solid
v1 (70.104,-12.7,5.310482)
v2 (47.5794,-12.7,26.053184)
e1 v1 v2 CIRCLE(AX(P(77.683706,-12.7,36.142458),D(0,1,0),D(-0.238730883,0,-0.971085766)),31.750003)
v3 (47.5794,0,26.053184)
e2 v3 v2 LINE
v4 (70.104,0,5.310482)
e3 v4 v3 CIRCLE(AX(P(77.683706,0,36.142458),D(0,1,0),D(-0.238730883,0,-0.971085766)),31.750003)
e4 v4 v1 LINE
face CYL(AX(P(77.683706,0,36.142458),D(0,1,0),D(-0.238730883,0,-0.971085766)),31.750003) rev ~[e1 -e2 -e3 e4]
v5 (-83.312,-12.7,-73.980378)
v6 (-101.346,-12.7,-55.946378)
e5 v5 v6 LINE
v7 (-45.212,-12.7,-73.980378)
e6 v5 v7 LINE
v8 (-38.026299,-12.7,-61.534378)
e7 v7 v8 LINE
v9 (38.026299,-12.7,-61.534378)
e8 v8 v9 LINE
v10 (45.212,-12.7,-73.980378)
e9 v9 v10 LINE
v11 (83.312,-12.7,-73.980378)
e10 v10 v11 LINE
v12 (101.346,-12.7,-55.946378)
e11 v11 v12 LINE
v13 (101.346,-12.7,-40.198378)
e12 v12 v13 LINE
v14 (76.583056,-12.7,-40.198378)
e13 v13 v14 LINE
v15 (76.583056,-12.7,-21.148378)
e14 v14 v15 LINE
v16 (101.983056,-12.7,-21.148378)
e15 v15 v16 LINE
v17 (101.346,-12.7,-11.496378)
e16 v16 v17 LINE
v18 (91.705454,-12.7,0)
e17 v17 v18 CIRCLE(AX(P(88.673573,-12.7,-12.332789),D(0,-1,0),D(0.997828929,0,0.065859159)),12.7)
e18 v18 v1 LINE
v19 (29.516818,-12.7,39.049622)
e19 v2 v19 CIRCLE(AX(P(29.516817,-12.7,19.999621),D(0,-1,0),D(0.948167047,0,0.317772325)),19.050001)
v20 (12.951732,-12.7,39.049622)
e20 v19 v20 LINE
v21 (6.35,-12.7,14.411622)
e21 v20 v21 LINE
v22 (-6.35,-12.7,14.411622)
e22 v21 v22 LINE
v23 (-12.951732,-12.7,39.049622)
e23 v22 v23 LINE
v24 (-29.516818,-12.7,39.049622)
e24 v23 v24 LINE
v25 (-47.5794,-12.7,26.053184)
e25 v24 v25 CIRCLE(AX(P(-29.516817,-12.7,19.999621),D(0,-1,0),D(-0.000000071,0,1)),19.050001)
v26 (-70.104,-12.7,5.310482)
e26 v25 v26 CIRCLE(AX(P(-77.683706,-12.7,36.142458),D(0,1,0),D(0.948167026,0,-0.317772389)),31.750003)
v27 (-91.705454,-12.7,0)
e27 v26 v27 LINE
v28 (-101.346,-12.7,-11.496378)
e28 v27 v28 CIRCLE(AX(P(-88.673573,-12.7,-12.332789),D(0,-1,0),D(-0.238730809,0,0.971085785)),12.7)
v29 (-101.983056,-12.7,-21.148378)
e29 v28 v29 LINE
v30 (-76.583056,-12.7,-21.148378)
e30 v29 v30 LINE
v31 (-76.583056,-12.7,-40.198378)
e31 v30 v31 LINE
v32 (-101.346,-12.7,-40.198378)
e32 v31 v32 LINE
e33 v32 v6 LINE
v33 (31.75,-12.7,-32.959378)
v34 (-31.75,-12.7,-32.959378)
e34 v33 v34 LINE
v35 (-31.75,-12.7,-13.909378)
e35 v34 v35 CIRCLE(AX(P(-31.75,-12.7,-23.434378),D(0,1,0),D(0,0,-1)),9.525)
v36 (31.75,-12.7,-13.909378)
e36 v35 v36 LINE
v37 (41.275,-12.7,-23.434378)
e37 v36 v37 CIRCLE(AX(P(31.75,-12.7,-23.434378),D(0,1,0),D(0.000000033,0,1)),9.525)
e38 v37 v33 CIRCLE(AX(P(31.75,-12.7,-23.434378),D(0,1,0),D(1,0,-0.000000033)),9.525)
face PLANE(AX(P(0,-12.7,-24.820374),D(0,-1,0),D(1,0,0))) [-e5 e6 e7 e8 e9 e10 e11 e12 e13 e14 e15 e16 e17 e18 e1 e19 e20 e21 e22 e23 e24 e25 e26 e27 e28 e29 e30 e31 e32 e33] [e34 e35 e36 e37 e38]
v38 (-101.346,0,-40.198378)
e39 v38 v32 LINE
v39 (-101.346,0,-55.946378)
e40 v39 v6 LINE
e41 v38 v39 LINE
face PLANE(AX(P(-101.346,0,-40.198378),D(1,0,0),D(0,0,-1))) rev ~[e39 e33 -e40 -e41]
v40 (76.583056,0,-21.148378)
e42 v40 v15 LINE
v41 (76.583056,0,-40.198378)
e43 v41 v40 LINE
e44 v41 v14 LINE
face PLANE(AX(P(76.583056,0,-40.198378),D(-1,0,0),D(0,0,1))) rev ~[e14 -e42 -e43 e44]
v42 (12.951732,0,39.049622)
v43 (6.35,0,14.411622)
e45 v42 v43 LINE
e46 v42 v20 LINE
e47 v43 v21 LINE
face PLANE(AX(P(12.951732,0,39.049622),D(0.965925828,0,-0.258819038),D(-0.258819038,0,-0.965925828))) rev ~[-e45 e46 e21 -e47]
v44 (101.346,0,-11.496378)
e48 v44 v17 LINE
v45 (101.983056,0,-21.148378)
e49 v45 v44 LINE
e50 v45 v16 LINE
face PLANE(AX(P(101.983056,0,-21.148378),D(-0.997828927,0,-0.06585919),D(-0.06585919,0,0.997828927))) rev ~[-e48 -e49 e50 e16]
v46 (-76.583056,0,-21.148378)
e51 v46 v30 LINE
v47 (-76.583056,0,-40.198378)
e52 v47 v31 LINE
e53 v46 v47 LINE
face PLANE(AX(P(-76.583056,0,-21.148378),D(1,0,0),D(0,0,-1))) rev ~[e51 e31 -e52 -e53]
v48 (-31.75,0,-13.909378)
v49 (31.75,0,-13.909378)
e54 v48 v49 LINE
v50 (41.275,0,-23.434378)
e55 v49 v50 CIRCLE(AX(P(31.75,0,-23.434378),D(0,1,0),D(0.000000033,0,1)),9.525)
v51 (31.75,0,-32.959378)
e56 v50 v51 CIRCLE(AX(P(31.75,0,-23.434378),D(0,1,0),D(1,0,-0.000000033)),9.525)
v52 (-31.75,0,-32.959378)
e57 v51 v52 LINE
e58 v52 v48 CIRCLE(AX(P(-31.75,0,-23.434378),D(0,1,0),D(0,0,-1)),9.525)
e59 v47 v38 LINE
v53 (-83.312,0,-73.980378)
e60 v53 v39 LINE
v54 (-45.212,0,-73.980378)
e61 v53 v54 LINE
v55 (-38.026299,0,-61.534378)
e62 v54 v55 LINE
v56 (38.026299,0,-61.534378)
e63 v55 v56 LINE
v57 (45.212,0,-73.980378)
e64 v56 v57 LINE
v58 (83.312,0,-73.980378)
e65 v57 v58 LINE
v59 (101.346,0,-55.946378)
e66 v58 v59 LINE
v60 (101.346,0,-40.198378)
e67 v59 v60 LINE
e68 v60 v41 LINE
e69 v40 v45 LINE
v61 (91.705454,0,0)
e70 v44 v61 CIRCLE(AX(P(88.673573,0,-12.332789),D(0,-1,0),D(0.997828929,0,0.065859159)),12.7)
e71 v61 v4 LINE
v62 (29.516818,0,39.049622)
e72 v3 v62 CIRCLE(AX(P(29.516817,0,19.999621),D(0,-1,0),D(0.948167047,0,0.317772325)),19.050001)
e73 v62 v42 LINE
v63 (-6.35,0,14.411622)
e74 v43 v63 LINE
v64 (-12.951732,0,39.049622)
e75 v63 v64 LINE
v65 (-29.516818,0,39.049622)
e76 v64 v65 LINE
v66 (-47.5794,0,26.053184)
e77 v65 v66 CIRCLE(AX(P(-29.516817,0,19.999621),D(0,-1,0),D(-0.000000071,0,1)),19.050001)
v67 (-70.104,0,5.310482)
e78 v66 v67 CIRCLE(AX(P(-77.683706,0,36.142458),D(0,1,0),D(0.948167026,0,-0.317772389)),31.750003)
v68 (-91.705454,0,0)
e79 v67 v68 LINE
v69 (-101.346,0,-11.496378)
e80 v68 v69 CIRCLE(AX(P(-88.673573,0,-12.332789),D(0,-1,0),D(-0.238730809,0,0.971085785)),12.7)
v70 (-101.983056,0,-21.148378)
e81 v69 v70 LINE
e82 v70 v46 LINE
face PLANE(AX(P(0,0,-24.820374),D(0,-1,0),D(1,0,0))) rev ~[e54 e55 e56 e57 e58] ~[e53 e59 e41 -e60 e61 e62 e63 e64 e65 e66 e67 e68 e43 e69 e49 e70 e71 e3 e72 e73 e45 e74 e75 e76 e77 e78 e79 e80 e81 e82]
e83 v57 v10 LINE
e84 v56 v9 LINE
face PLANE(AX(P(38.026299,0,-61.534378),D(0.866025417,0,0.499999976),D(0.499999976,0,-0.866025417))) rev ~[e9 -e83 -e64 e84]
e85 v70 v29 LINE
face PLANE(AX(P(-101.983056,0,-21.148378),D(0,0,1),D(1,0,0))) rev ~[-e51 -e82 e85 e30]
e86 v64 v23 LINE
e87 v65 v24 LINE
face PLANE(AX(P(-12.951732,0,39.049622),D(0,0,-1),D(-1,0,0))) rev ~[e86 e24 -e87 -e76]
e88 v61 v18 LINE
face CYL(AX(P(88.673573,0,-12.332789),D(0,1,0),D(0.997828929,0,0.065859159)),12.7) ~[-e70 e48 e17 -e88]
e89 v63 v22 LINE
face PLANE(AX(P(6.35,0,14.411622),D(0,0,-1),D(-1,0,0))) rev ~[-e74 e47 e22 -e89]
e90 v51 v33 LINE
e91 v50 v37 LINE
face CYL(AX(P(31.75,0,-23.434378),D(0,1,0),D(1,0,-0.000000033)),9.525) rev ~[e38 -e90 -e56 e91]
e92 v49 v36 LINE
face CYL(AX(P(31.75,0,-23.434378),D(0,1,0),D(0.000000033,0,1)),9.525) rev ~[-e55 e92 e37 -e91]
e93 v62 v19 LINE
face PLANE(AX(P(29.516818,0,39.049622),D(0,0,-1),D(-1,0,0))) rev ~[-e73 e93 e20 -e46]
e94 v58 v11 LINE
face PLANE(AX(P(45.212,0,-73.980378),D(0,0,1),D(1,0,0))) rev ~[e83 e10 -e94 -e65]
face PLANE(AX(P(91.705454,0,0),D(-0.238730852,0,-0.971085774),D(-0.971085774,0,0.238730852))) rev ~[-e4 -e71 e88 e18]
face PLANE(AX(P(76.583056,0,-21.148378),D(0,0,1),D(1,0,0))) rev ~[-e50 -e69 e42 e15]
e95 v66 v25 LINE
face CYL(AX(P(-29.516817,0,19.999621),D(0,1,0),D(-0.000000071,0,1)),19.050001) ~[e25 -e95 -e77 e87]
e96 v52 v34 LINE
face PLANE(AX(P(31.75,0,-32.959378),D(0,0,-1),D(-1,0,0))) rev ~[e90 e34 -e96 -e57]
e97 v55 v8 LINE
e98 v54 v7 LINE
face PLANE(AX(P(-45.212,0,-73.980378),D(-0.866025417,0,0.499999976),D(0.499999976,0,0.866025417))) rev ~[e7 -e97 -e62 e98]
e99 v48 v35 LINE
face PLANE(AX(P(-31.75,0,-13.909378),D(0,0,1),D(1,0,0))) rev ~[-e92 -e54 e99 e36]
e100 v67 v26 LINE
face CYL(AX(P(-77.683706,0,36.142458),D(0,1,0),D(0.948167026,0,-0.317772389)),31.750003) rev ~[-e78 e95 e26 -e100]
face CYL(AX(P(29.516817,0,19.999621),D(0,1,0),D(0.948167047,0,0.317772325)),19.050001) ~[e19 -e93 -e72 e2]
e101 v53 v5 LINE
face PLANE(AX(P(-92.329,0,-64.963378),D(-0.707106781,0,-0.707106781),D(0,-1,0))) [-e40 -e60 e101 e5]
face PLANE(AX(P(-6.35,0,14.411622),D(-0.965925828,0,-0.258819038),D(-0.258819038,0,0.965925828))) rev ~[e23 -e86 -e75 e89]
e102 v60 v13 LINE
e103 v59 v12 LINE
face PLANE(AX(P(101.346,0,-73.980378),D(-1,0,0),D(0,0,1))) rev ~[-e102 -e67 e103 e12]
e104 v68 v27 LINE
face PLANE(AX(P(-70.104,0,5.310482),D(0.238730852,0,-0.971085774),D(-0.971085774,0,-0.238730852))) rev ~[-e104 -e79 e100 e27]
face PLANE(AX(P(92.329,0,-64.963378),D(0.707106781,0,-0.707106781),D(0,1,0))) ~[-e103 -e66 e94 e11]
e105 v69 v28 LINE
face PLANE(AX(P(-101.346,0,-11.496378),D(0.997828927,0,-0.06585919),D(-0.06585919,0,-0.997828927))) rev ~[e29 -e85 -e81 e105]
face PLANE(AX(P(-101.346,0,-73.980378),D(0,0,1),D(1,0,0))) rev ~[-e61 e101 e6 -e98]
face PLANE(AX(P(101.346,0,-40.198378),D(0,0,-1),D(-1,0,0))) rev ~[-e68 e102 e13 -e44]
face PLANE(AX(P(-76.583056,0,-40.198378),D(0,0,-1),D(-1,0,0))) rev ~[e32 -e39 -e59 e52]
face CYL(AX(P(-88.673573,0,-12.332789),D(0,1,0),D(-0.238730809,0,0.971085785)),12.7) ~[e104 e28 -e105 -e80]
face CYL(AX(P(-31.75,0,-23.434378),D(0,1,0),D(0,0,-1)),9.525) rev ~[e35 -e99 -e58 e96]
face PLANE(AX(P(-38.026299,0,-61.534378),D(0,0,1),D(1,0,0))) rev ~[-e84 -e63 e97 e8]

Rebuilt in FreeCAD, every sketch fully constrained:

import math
import FreeCAD as App
import Part
import Sketcher
Q = App.Units.Quantity


def edges_at(feature, points):
    """Names of the edges that pass closest to the given points."""
    edges = feature.Shape.Edges
    near = lambda p: min(range(len(edges)), key=lambda i: edges[i].distToShape(Part.Vertex(*p))[0])
    return sorted({f"Edge{near(p) + 1}" for p in points})

doc = App.newDocument("Part")
params = doc.addObject("Spreadsheet::Sheet", "Params")
for row, (alias, value) in enumerate([
    ("sketch1_radius", "0.5 in"),
    ("sketch1_width", "1 in"),
    ("sketch1_radius2", "1.2500001 in"),
    ("sketch1_radius3", "0.75 in"),
    ("sketch1_width2", "0.5 in"),
    ("pad1_length", "0.5 in"),
    ("chamfer_size", "0.71 in"),
], start=1):
    params.set(f"A{row}", alias)
    params.set(f"B{row}", "=" + value)
    params.setAlias(f"B{row}", alias)

body = doc.addObject("PartDesign::Body", "Body")

# Sketch on XZ plane
sketch1 = body.newObject("Sketcher::SketchObject", "Sketch")
sketch1.AttachmentSupport = (doc.getObject("XZ_Plane"), [""])
sketch1.MapMode = "FlatFace"
sketch1.addGeometry([
    Part.LineSegment(App.Vector(-45, -74, 0), App.Vector(-38, -62, 0)),  # 0
    Part.LineSegment(App.Vector(-38, -62, 0), App.Vector(38, -62, 0)),  # 1
    Part.LineSegment(App.Vector(38, -62, 0), App.Vector(45, -74, 0)),  # 2
    Part.LineSegment(App.Vector(45, -74, 0), App.Vector(101, -74, 0)),  # 3
    Part.LineSegment(App.Vector(101, -74, 0), App.Vector(101, -40, 0)),  # 4
    Part.LineSegment(App.Vector(101, -40, 0), App.Vector(77, -40, 0)),  # 5
    Part.LineSegment(App.Vector(77, -40, 0), App.Vector(77, -21, 0)),  # 6
    Part.LineSegment(App.Vector(77, -21, 0), App.Vector(102, -21, 0)),  # 7
    Part.LineSegment(App.Vector(102, -21, 0), App.Vector(101, -11, 0)),  # 8
    Part.ArcOfCircle(Part.Circle(App.Vector(89, -12, 0), App.Vector(0, 0, 1), 13), math.radians(4), math.radians(76)),  # 9
    Part.LineSegment(App.Vector(92, 0, 0), App.Vector(70, 5, 0)),  # 10
    Part.ArcOfCircle(Part.Circle(App.Vector(78, 36, 0), App.Vector(0, 0, 1), 32), math.radians(-161), math.radians(-104)),  # 11
    Part.ArcOfCircle(Part.Circle(App.Vector(30, 20, 0), App.Vector(0, 0, 1), 19), math.radians(19), math.radians(90)),  # 12
    Part.LineSegment(App.Vector(30, 39, 0), App.Vector(13, 39, 0)),  # 13
    Part.LineSegment(App.Vector(13, 39, 0), App.Vector(6, 14, 0)),  # 14
    Part.LineSegment(App.Vector(6, 14, 0), App.Vector(-6, 14, 0)),  # 15
    Part.LineSegment(App.Vector(-6, 14, 0), App.Vector(-13, 39, 0)),  # 16
    Part.LineSegment(App.Vector(-13, 39, 0), App.Vector(-30, 39, 0)),  # 17
    Part.ArcOfCircle(Part.Circle(App.Vector(-30, 20, 0), App.Vector(0, 0, 1), 19), math.radians(90), math.radians(161)),  # 18
    Part.ArcOfCircle(Part.Circle(App.Vector(-78, 36, 0), App.Vector(0, 0, 1), 32), math.radians(-76), math.radians(-19)),  # 19
    Part.LineSegment(App.Vector(-70, 5, 0), App.Vector(-92, 0, 0)),  # 20
    Part.ArcOfCircle(Part.Circle(App.Vector(-89, -12, 0), App.Vector(0, 0, 1), 13), math.radians(104), math.radians(176)),  # 21
    Part.LineSegment(App.Vector(-101, -11, 0), App.Vector(-102, -21, 0)),  # 22
    Part.LineSegment(App.Vector(-102, -21, 0), App.Vector(-77, -21, 0)),  # 23
    Part.LineSegment(App.Vector(-77, -21, 0), App.Vector(-77, -40, 0)),  # 24
    Part.LineSegment(App.Vector(-77, -40, 0), App.Vector(-101, -40, 0)),  # 25
    Part.LineSegment(App.Vector(-101, -40, 0), App.Vector(-101, -74, 0)),  # 26
    Part.LineSegment(App.Vector(-101, -74, 0), App.Vector(-45, -74, 0)),  # 27
    Part.ArcOfCircle(Part.Circle(App.Vector(32, -23, 0), App.Vector(0, 0, 1), 10), math.radians(0), math.radians(90)),  # 28
    Part.ArcOfCircle(Part.Circle(App.Vector(32, -23, 0), App.Vector(0, 0, 1), 10), math.radians(-90), math.radians(0)),  # 29
    Part.LineSegment(App.Vector(32, -33, 0), App.Vector(-32, -33, 0)),  # 30
    Part.ArcOfCircle(Part.Circle(App.Vector(-32, -23, 0), App.Vector(0, 0, 1), 10), math.radians(90), math.radians(270)),  # 31
    Part.LineSegment(App.Vector(-32, -14, 0), App.Vector(32, -14, 0)),  # 32
], False)
sketch1.addConstraint([
    Sketcher.Constraint("Coincident", 0, 2, 1, 1),
    Sketcher.Constraint("Coincident", 1, 2, 2, 1),
    Sketcher.Constraint("Coincident", 2, 2, 3, 1),
    Sketcher.Constraint("Coincident", 3, 2, 4, 1),
    Sketcher.Constraint("Coincident", 4, 2, 5, 1),
    Sketcher.Constraint("Coincident", 5, 2, 6, 1),
    Sketcher.Constraint("Coincident", 6, 2, 7, 1),
    Sketcher.Constraint("Coincident", 7, 2, 8, 1),
    Sketcher.Constraint("Tangent", 8, 2, 9, 1),
    Sketcher.Constraint("Tangent", 9, 2, 10, 1),
    Sketcher.Constraint("Tangent", 10, 2, 11, 2),
    Sketcher.Constraint("Tangent", 11, 1, 12, 1),
    Sketcher.Constraint("Tangent", 12, 2, 13, 1),
    Sketcher.Constraint("Coincident", 13, 2, 14, 1),
    Sketcher.Constraint("Coincident", 14, 2, 15, 1),
    Sketcher.Constraint("Coincident", 15, 2, 16, 1),
    Sketcher.Constraint("Coincident", 16, 2, 17, 1),
    Sketcher.Constraint("Tangent", 17, 2, 18, 1),
    Sketcher.Constraint("Tangent", 18, 2, 19, 2),
    Sketcher.Constraint("Tangent", 19, 1, 20, 1),
    Sketcher.Constraint("Tangent", 20, 2, 21, 1),
    Sketcher.Constraint("Tangent", 21, 2, 22, 1),
    Sketcher.Constraint("Coincident", 22, 2, 23, 1),
    Sketcher.Constraint("Coincident", 23, 2, 24, 1),
    Sketcher.Constraint("Coincident", 24, 2, 25, 1),
    Sketcher.Constraint("Coincident", 25, 2, 26, 1),
    Sketcher.Constraint("Coincident", 26, 2, 27, 1),
    Sketcher.Constraint("Coincident", 27, 2, 0, 1),
    Sketcher.Constraint("Tangent", 28, 1, 29, 2),
    Sketcher.Constraint("Tangent", 29, 1, 30, 1),
    Sketcher.Constraint("Tangent", 30, 2, 31, 2),
    Sketcher.Constraint("Tangent", 31, 1, 32, 1),
    Sketcher.Constraint("Tangent", 32, 2, 28, 2),
    Sketcher.Constraint("Horizontal", 1),
    Sketcher.Constraint("Horizontal", 3),
    Sketcher.Constraint("Vertical", 4),
    Sketcher.Constraint("Horizontal", 5),
    Sketcher.Constraint("Vertical", 6),
    Sketcher.Constraint("Horizontal", 7),
    Sketcher.Constraint("Horizontal", 13),
    Sketcher.Constraint("Horizontal", 15),
    Sketcher.Constraint("Horizontal", 17),
    Sketcher.Constraint("Horizontal", 23),
    Sketcher.Constraint("Vertical", 24),
    Sketcher.Constraint("Horizontal", 25),
    Sketcher.Constraint("Vertical", 26),
    Sketcher.Constraint("Horizontal", 27),
    Sketcher.Constraint("Horizontal", 30),
    Sketcher.Constraint("Horizontal", 32),
    Sketcher.Constraint("Equal", 12, 18),
    Sketcher.Constraint("Equal", 11, 19),
    Sketcher.Constraint("Equal", 9, 21),
    Sketcher.Constraint("Equal", 28, 29),
    Sketcher.Constraint("Symmetric", 9, 2, 20, 2, -1, 1),
    Sketcher.Constraint("Symmetric", 12, 3, 18, 3, -2),
    Sketcher.Constraint("Symmetric", 9, 3, 21, 3, -2),
    Sketcher.Constraint("Symmetric", 7, 2, 22, 2, -2),
    Sketcher.Constraint("Symmetric", 5, 2, 24, 2, -2),
    Sketcher.Constraint("Symmetric", 3, 2, 26, 2, -2),
    Sketcher.Constraint("Horizontal", 31, 3, 28, 1),
    Sketcher.Constraint("Vertical", 4, 2, 8, 2),
    Sketcher.Constraint("Equal", 13, 17),
    Sketcher.Constraint("Equal", 3, 27),
    Sketcher.Constraint("Equal", 0, 2),
    Sketcher.Constraint("Equal", 14, 16),
    Sketcher.Constraint("Radius", 9, Q("0.5 in")),
    Sketcher.Constraint("DistanceX", 7, 1, 7, 2, Q("1 in")),
    Sketcher.Constraint("Radius", 11, Q("1.2500001 in")),
    Sketcher.Constraint("Radius", 12, Q("0.75 in")),
    Sketcher.Constraint("DistanceX", 15, 2, 15, 1, Q("0.5 in")),
    Sketcher.Constraint("DistanceX", 30, 2, 30, 1, Q("2.5 in")),
    Sketcher.Constraint("Angle", 0, Q("60.000002 deg")),
    Sketcher.Constraint("Angle", 14, Q("-105 deg")),
    Sketcher.Constraint("Radius", 28, Q("0.375 in")),
    Sketcher.Constraint("DistanceX", 31, 1, 15, 2, Q("1 in")),
    Sketcher.Constraint("DistanceX", 3, 1, 3, 2, Q("2.21 in")),
    Sketcher.Constraint("DistanceY", 4, 1, 4, 2, Q("1.33 in")),
    Sketcher.Constraint("DistanceY", 6, 1, 6, 2, Q("0.75 in")),
    Sketcher.Constraint("DistanceY", 0, 2, 31, 3, Q("1.5 in")),
    Sketcher.Constraint("DistanceX", -1, 1, 2, 2, Q("1.78 in")),
    Sketcher.Constraint("DistanceX", -1, 1, 10, 2, Q("2.76 in")),
    Sketcher.Constraint("DistanceY", 28, 3, 12, 3, Q("1.71 in")),
    Sketcher.Constraint("DistanceY", 2, 2, 1, 2, Q("0.49 in")),
    Sketcher.Constraint("DistanceY", 7, 2, 8, 2, Q("0.38 in")),
    Sketcher.Constraint("DistanceY", 14, 2, 12, 3, Q("0.22 in")),
    Sketcher.Constraint("Distance", 8, 9.673001),
    Sketcher.Constraint("DistanceX", -1, 1, 11, 1, 47.5794),
])
sketch1.setExpression("Constraints[65]", "Params.sketch1_radius")
sketch1.setExpression("Constraints[66]", "Params.sketch1_width")
sketch1.setExpression("Constraints[67]", "Params.sketch1_radius2")
sketch1.setExpression("Constraints[68]", "Params.sketch1_radius3")
sketch1.setExpression("Constraints[69]", "Params.sketch1_width2")
pad1 = body.newObject("PartDesign::Pad", "Pad")
pad1.Profile = sketch1
pad1.setExpression("Length", "Params.pad1_length")
doc.recompute()

chamfer = body.newObject("PartDesign::Chamfer", "Chamfer")
chamfer.Base = (pad1, edges_at(pad1, [(-101.346, -6.35, -73.98), (101.346, -6.35, -73.98)]))
chamfer.setExpression("Size", "Params.chamfer_size")

doc.recompute()
